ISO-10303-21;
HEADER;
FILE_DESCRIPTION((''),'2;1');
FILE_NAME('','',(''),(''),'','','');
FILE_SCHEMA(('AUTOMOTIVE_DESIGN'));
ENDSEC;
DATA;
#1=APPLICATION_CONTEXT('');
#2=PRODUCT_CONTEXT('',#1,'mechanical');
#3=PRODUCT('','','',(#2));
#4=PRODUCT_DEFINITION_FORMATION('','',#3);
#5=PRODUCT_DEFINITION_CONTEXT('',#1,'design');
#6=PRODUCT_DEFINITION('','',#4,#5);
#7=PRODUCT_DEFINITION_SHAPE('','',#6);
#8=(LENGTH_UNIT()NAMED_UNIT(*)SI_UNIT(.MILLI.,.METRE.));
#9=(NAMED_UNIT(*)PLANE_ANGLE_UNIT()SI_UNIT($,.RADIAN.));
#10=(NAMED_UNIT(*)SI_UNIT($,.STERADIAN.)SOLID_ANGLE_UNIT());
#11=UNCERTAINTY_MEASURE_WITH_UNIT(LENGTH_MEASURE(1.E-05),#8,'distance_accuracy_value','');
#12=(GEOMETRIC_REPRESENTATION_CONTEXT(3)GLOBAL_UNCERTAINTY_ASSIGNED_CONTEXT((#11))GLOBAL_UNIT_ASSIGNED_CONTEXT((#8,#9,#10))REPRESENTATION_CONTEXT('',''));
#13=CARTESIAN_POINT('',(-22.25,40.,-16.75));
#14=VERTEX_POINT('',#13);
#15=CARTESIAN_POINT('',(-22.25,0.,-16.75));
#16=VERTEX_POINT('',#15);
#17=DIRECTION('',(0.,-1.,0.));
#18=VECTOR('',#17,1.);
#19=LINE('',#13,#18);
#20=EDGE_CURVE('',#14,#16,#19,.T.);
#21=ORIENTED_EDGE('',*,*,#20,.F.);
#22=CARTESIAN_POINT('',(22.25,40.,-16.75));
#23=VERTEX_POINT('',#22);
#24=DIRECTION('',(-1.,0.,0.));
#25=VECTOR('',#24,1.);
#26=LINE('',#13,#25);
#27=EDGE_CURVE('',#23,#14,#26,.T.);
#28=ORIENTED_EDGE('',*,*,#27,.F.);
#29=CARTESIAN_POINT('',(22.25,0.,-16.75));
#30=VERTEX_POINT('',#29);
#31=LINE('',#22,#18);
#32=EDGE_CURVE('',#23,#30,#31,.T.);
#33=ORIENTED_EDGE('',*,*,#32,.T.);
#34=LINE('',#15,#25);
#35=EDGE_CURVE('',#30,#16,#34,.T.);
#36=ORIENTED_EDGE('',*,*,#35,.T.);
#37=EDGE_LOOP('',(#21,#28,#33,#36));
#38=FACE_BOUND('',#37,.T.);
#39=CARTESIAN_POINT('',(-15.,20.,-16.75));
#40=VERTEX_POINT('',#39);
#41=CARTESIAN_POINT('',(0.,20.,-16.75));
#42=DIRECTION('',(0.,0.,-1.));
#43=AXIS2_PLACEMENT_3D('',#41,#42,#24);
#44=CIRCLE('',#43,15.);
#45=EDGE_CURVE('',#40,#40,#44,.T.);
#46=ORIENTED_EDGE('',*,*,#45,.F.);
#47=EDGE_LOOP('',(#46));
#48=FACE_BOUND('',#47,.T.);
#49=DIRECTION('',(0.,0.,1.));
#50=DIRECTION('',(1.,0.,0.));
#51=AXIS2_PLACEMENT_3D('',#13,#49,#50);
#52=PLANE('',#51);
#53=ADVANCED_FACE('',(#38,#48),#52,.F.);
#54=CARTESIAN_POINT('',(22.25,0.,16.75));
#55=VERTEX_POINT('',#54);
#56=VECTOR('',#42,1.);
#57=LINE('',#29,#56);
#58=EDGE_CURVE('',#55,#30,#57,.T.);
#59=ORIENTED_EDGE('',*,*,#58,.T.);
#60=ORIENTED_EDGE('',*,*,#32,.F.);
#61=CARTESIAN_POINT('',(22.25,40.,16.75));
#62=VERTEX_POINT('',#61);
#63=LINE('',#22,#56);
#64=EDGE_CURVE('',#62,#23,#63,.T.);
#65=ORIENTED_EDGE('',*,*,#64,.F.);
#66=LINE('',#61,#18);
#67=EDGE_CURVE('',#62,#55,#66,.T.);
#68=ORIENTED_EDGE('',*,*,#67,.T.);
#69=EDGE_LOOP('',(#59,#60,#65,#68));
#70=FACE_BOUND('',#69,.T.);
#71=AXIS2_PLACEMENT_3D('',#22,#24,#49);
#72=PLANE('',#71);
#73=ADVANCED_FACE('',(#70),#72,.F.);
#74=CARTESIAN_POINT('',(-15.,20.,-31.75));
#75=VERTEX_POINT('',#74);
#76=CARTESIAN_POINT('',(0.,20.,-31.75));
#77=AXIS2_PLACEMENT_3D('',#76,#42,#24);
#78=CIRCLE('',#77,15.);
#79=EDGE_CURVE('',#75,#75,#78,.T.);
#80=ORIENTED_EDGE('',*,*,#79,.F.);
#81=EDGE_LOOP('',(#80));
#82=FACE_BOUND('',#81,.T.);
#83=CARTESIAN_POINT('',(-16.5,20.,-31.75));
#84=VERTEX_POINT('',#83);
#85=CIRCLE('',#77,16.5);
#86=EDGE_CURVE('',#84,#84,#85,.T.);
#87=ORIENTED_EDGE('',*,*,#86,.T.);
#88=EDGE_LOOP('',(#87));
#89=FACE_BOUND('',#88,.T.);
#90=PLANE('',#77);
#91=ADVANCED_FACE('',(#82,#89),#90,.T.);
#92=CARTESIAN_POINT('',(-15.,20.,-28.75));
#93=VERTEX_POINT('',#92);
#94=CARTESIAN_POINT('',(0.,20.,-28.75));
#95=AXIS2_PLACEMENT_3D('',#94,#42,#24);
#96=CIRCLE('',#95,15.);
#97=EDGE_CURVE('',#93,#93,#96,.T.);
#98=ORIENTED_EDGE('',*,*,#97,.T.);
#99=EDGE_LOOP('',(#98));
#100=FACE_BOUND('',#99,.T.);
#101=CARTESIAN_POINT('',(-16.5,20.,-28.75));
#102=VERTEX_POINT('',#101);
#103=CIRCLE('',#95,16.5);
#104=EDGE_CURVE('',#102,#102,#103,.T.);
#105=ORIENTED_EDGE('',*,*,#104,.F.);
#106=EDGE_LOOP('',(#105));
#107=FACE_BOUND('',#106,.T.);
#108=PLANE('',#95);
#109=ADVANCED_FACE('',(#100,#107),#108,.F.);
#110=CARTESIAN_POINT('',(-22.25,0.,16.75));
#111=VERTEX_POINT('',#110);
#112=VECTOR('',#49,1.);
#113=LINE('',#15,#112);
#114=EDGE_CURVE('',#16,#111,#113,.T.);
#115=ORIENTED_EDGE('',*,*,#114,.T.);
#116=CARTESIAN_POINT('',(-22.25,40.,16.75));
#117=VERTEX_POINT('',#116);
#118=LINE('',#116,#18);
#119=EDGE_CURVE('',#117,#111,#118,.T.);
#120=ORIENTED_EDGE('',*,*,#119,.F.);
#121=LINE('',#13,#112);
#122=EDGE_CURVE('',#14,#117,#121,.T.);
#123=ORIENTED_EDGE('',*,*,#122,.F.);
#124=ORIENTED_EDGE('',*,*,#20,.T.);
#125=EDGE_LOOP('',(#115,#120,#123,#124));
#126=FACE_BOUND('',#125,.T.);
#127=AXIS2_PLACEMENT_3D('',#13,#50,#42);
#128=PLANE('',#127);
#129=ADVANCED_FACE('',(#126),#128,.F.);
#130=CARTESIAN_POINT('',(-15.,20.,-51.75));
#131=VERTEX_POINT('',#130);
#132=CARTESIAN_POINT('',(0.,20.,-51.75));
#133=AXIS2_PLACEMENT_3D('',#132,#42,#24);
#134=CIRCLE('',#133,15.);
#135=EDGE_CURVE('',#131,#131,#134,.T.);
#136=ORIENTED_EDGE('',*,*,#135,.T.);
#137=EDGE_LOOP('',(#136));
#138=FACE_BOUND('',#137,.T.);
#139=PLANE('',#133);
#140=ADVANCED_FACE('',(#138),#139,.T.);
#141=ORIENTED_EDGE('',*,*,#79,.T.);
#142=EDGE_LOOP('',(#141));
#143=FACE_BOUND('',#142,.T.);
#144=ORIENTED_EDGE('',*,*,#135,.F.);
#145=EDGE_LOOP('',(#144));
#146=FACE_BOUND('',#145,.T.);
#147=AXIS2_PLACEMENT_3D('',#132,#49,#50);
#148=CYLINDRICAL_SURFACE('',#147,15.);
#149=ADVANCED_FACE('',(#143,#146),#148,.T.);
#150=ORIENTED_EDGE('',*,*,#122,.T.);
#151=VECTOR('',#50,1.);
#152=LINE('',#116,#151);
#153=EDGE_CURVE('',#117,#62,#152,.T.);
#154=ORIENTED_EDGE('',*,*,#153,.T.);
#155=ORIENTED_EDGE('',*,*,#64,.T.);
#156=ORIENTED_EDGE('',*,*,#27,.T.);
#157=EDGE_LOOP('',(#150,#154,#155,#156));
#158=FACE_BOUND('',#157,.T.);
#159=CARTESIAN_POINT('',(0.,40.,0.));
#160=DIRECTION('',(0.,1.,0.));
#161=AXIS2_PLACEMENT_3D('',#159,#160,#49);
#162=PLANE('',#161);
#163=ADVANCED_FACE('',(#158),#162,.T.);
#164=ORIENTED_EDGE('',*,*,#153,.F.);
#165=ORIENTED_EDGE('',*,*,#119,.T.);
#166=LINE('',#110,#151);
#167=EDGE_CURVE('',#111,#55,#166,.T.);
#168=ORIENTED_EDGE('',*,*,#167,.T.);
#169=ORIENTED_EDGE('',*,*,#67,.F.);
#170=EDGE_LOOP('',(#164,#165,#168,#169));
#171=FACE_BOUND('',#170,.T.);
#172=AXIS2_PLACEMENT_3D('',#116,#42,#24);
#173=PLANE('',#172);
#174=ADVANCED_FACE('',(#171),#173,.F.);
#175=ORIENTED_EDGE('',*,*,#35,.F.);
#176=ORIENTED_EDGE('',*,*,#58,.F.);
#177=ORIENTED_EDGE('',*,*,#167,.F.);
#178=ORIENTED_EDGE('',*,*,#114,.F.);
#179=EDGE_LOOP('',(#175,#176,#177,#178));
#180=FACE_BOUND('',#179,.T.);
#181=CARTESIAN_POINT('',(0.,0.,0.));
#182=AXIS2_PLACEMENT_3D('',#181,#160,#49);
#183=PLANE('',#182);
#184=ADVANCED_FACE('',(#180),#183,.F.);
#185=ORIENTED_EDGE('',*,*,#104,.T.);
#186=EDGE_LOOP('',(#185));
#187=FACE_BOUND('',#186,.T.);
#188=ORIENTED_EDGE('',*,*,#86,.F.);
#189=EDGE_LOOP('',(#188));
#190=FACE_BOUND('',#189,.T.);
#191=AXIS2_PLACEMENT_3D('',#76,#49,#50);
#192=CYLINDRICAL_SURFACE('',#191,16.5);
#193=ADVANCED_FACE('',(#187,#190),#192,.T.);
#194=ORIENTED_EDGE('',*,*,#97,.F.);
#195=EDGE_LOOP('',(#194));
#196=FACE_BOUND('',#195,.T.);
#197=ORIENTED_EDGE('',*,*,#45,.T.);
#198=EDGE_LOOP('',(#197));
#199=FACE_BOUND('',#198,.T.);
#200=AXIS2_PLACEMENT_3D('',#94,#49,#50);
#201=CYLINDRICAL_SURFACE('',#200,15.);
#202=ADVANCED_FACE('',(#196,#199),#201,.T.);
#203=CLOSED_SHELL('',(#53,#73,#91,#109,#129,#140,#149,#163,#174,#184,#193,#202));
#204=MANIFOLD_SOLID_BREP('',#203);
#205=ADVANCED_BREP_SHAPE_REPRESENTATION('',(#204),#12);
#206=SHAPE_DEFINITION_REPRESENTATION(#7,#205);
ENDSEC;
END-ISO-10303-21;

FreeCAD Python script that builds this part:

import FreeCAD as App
import Part
import Sketcher
from FreeCAD import Vector

doc = App.newDocument("Part")
params = doc.addObject("Spreadsheet::Sheet", "Params")
for row, (alias, value) in enumerate([
    ("sketch1_width", "44.5 mm"),
    ("sketch1_height", "33.5 mm"),
    ("pad1_length", "40 mm"),
    ("sketch2_diameter", "30 mm"),
    ("pad2_length", "12 mm"),
    ("sketch3_diameter", "33 mm"),
    ("pad3_length", "3 mm"),
    ("sketch4_diameter", "30 mm"),
    ("pad4_length", "20 mm"),
], start=1):
    params.set(f"A{row}", alias)
    params.set(f"B{row}", "=" + value)
    params.setAlias(f"B{row}", alias)

body = doc.addObject("PartDesign::Body", "Body")

sketch1 = body.newObject("Sketcher::SketchObject", "Sketch")
sketch1.AttachmentSupport = (doc.getObject("XZ_Plane"), [""])
sketch1.MapMode = "FlatFace"
sketch1.addGeometry([
    Part.LineSegment(Vector(-22, -17, 0), Vector(-22, 17, 0)),
    Part.LineSegment(Vector(-22, 17, 0), Vector(22, 17, 0)),
    Part.LineSegment(Vector(22, 17, 0), Vector(22, -17, 0)),
    Part.LineSegment(Vector(22, -17, 0), Vector(-22, -17, 0)),
], False)
sketch1.addConstraint([
    Sketcher.Constraint("Coincident", 0, 2, 1, 1),
    Sketcher.Constraint("Coincident", 1, 2, 2, 1),
    Sketcher.Constraint("Coincident", 2, 2, 3, 1),
    Sketcher.Constraint("Coincident", 3, 2, 0, 1),
    Sketcher.Constraint("Vertical", 0),
    Sketcher.Constraint("Horizontal", 1),
    Sketcher.Constraint("Vertical", 2),
    Sketcher.Constraint("Horizontal", 3),
    Sketcher.Constraint("Symmetric", 0, 2, 2, 2, -1, 1),
    Sketcher.Constraint("DistanceX", 1, 1, 1, 2, 44.5),
    Sketcher.Constraint("DistanceY", 0, 1, 0, 2, 33.5),
])
sketch1.setExpression("Constraints[9]", "Params.sketch1_width")
sketch1.setExpression("Constraints[10]", "Params.sketch1_height")
pad1 = body.newObject("PartDesign::Pad", "Pad")
pad1.Profile = sketch1
pad1.setExpression("Length", "Params.pad1_length")
pad1.Reversed = True

sketch2 = body.newObject("Sketcher::SketchObject", "Sketch001")
sketch2.AttachmentSupport = (doc.getObject("XY_Plane"), [""])
sketch2.MapMode = "FlatFace"
sketch2.AttachmentOffset = App.Placement(Vector(0, 0, -16.75), App.Rotation())
sketch2.addGeometry(Part.Circle(Vector(0, 20, 0), Vector(0, 0, 1), 15), False)
sketch2.addConstraint([
    Sketcher.Constraint("PointOnObject", 0, 3, -2),
    Sketcher.Constraint("Diameter", 0, 30.0),
    Sketcher.Constraint("DistanceY", -1, 1, 0, 3, 20.0),
])
sketch2.setExpression("Constraints[1]", "Params.sketch2_diameter")
pad2 = body.newObject("PartDesign::Pad", "Pad001")
pad2.Profile = sketch2
pad2.setExpression("Length", "Params.pad2_length")
pad2.Reversed = True

sketch3 = body.newObject("Sketcher::SketchObject", "Sketch002")
sketch3.AttachmentSupport = (doc.getObject("XY_Plane"), [""])
sketch3.MapMode = "FlatFace"
sketch3.AttachmentOffset = App.Placement(Vector(0, 0, -28.75), App.Rotation())
sketch3.addGeometry(Part.Circle(Vector(0, 20, 0), Vector(0, 0, 1), 16), False)
sketch3.addConstraint([
    Sketcher.Constraint("PointOnObject", 0, 3, -2),
    Sketcher.Constraint("Diameter", 0, 33.0),
    Sketcher.Constraint("DistanceY", -1, 1, 0, 3, 20.0),
])
sketch3.setExpression("Constraints[1]", "Params.sketch3_diameter")
pad3 = body.newObject("PartDesign::Pad", "Pad002")
pad3.Profile = sketch3
pad3.setExpression("Length", "Params.pad3_length")
pad3.Reversed = True

sketch4 = body.newObject("Sketcher::SketchObject", "Sketch003")
sketch4.AttachmentSupport = (doc.getObject("XY_Plane"), [""])
sketch4.MapMode = "FlatFace"
sketch4.AttachmentOffset = App.Placement(Vector(0, 0, -31.75), App.Rotation())
sketch4.addGeometry(Part.Circle(Vector(0, 20, 0), Vector(0, 0, 1), 15), False)
sketch4.addConstraint([
    Sketcher.Constraint("PointOnObject", 0, 3, -2),
    Sketcher.Constraint("Diameter", 0, 30.0),
    Sketcher.Constraint("DistanceY", -1, 1, 0, 3, 20.0),
])
sketch4.setExpression("Constraints[1]", "Params.sketch4_diameter")
pad4 = body.newObject("PartDesign::Pad", "Pad003")
pad4.Profile = sketch4
pad4.setExpression("Length", "Params.pad4_length")
pad4.Reversed = True

doc.recompute()
